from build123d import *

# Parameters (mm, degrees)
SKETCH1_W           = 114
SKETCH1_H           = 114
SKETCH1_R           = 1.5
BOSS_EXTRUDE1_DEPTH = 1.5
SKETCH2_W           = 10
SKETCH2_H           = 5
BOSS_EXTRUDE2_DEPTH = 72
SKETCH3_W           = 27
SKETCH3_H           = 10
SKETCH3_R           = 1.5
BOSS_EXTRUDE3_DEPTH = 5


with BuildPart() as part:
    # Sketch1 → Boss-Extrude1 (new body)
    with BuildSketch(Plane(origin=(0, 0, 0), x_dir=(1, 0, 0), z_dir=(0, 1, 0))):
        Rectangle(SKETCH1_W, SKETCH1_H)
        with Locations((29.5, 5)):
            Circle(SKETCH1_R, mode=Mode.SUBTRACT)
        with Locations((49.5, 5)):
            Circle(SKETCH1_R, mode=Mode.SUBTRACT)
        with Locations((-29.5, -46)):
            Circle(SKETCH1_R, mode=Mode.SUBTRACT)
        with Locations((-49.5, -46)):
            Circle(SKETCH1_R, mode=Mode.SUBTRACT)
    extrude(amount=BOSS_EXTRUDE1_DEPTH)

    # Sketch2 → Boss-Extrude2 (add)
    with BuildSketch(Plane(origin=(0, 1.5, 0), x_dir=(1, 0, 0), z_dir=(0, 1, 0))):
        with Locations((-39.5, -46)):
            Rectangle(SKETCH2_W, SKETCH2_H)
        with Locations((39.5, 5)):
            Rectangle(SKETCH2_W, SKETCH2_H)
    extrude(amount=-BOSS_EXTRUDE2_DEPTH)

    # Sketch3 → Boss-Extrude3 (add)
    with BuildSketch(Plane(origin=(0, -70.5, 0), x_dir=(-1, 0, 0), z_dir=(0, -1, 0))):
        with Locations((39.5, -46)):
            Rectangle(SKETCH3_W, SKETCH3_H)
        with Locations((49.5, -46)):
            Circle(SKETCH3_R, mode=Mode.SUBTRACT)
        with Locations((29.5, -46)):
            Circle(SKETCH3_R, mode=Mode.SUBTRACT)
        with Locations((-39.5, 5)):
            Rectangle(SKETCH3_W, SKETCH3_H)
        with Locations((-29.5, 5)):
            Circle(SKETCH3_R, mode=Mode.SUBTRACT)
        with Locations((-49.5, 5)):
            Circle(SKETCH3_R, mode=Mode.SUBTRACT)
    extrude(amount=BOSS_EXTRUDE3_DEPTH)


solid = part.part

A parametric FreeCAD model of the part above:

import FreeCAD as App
import Part
import Sketcher


def add_polygon(sketch, points):
    """Adds a closed chain of lines whose ends are joined by coincident constraints."""
    first, n = sketch.GeometryCount, len(points)
    for a, b in zip(points, points[1:] + points[:1]):
        sketch.addGeometry(Part.LineSegment(App.Vector(*a, 0), App.Vector(*b, 0)), False)
    for i in range(n):
        sketch.addConstraint(Sketcher.Constraint("Coincident", first + i, 2, first + (i + 1) % n, 1))

doc = App.newDocument("Part")
body = doc.addObject("PartDesign::Body", "Body")

# Sketch on XZ plane
sketch1 = body.newObject("Sketcher::SketchObject", "Sketch")
sketch1.AttachmentSupport = (doc.getObject("XZ_Plane"), [""])
sketch1.MapMode = "FlatFace"
add_polygon(sketch1, [(-57, -57), (-57, 57), (57, 57), (57, -57)])  # lines 0-3
sketch1.addGeometry(Part.Circle(App.Vector(-49.5, 46, 0), App.Vector(0, 0, 1), 1.5), False)  # 4
sketch1.addGeometry(Part.Circle(App.Vector(-29.5, 46, 0), App.Vector(0, 0, 1), 1.5), False)  # 5
sketch1.addGeometry(Part.Circle(App.Vector(29.5, -5, 0), App.Vector(0, 0, 1), 1.5), False)  # 6
sketch1.addGeometry(Part.Circle(App.Vector(49.5, -5, 0), App.Vector(0, 0, 1), 1.5), False)  # 7
sketch1.addConstraint([
    Sketcher.Constraint("Vertical", 0),
    Sketcher.Constraint("Horizontal", 1),
    Sketcher.Constraint("Vertical", 2),
    Sketcher.Constraint("Horizontal", 3),
    Sketcher.Constraint("Equal", 4, 5),
    Sketcher.Constraint("Equal", 5, 6),
    Sketcher.Constraint("Equal", 6, 7),
    Sketcher.Constraint("Symmetric", 0, 2, 2, 2, -1, 1),
    Sketcher.Constraint("Horizontal", 4, 3, 5, 3),
    Sketcher.Constraint("Horizontal", 6, 3, 7, 3),
    Sketcher.Constraint("Equal", 3, 0),
    Sketcher.Constraint("Diameter", 4, 3.0),
    Sketcher.Constraint("DistanceX", 1, 1, 1, 2, 114.0),
    Sketcher.Constraint("DistanceY", -1, 1, 4, 3, 46.0),
    Sketcher.Constraint("DistanceY", 6, 3, -1, 1, 5.0),
    Sketcher.Constraint("DistanceX", 4, 3, 5, 3, 20.0),
    Sketcher.Constraint("DistanceX", 5, 3, 6, 3, 59.0),
    Sketcher.Constraint("DistanceX", 6, 3, 7, 3, 20.0),
    Sketcher.Constraint("DistanceX", 4, 3, -1, 1, 49.5),
])
pad1 = body.newObject("PartDesign::Pad", "Pad")
pad1.Profile = sketch1
pad1.Length = 1.5
pad1.Reversed = True

# Sketch on XZ plane
sketch2 = body.newObject("Sketcher::SketchObject", "Sketch001")
sketch2.AttachmentSupport = (doc.getObject("XZ_Plane"), [""])
sketch2.MapMode = "FlatFace"
sketch2.AttachmentOffset = App.Placement(App.Vector(0, 0, -1.5), App.Rotation())
add_polygon(sketch2, [(-44, 44), (-44, 48), (-34, 48), (-34, 44)])  # lines 0-3
add_polygon(sketch2, [(34, -8), (34, -2), (44, -2), (44, -8)])  # lines 4-7
sketch2.addConstraint([
    Sketcher.Constraint("Vertical", 0),
    Sketcher.Constraint("Horizontal", 1),
    Sketcher.Constraint("Vertical", 2),
    Sketcher.Constraint("Horizontal", 3),
    Sketcher.Constraint("Vertical", 4),
    Sketcher.Constraint("Horizontal", 5),
    Sketcher.Constraint("Vertical", 6),
    Sketcher.Constraint("Horizontal", 7),
    Sketcher.Constraint("Equal", 3, 5),
    Sketcher.Constraint("Equal", 2, 4),
    Sketcher.Constraint("DistanceX", 1, 1, 1, 2, 10.0),
    Sketcher.Constraint("DistanceY", 0, 1, 0, 2, 5.0),
    Sketcher.Constraint("DistanceX", 2, 2, 4, 2, 69.0),
    Sketcher.Constraint("DistanceY", 4, 2, 2, 2, 46.0),
    Sketcher.Constraint("DistanceX", 0, 2, -1, 1, 44.5),
    Sketcher.Constraint("DistanceY", -1, 1, 0, 2, 48.5),
])
pad2 = body.newObject("PartDesign::Pad", "Pad001")
pad2.Profile = sketch2
pad2.Length = 72

# Sketch on XZ plane
sketch3 = body.newObject("Sketcher::SketchObject", "Sketch002")
sketch3.AttachmentSupport = (doc.getObject("XZ_Plane"), [""])
sketch3.MapMode = "FlatFace"
sketch3.AttachmentOffset = App.Placement(App.Vector(0, 0, 70.5), App.Rotation())
add_polygon(sketch3, [(-26, 41), (-26, 51), (-53, 51), (-53, 41)])  # lines 0-3
sketch3.addGeometry(Part.Circle(App.Vector(-29.5, 46, 0), App.Vector(0, 0, 1), 1.5), False)  # 4
sketch3.addGeometry(Part.Circle(App.Vector(-49.5, 46, 0), App.Vector(0, 0, 1), 1.5), False)  # 5
add_polygon(sketch3, [(53, -10), (53, 0), (26, 0), (26, -10)])  # lines 6-9
sketch3.addGeometry(Part.Circle(App.Vector(49.5, -5, 0), App.Vector(0, 0, 1), 1.5), False)  # 10
sketch3.addGeometry(Part.Circle(App.Vector(29.5, -5, 0), App.Vector(0, 0, 1), 1.5), False)  # 11
sketch3.addConstraint([
    Sketcher.Constraint("Vertical", 0),
    Sketcher.Constraint("Horizontal", 1),
    Sketcher.Constraint("Vertical", 2),
    Sketcher.Constraint("Horizontal", 3),
    Sketcher.Constraint("Vertical", 6),
    Sketcher.Constraint("Horizontal", 7),
    Sketcher.Constraint("Vertical", 8),
    Sketcher.Constraint("Horizontal", 9),
    Sketcher.Constraint("Equal", 4, 5),
    Sketcher.Constraint("Equal", 5, 10),
    Sketcher.Constraint("Equal", 10, 11),
    Sketcher.Constraint("PointOnObject", 6, 2, -1),
    Sketcher.Constraint("Horizontal", 4, 3, 5, 3),
    Sketcher.Constraint("Horizontal", 10, 3, 11, 3),
    Sketcher.Constraint("Equal", 3, 7),
    Sketcher.Constraint("Equal", 2, 6),
    Sketcher.Constraint("Diameter", 4, 3.0),
    Sketcher.Constraint("DistanceX", 1, 2, 1, 1, 27.0),
    Sketcher.Constraint("DistanceY", 0, 1, 0, 2, 10.0),
    Sketcher.Constraint("DistanceY", -1, 1, 4, 3, 46.0),
    Sketcher.Constraint("DistanceY", 10, 3, -1, 1, 5.0),
    Sketcher.Constraint("DistanceX", 0, 2, -1, 1, 26.0),
    Sketcher.Constraint("DistanceY", -1, 1, 0, 2, 51.0),
    Sketcher.Constraint("DistanceX", -1, 1, 6, 2, 53.0),
    Sketcher.Constraint("DistanceX", 5, 3, 4, 3, 20.0),
    Sketcher.Constraint("DistanceX", 4, 3, 10, 3, 79.0),
    Sketcher.Constraint("DistanceX", 11, 3, 10, 3, 20.0),
    Sketcher.Constraint("DistanceX", 4, 3, -1, 1, 29.5),
])
pad3 = body.newObject("PartDesign::Pad", "Pad002")
pad3.Profile = sketch3
pad3.Length = 5

doc.recompute()
